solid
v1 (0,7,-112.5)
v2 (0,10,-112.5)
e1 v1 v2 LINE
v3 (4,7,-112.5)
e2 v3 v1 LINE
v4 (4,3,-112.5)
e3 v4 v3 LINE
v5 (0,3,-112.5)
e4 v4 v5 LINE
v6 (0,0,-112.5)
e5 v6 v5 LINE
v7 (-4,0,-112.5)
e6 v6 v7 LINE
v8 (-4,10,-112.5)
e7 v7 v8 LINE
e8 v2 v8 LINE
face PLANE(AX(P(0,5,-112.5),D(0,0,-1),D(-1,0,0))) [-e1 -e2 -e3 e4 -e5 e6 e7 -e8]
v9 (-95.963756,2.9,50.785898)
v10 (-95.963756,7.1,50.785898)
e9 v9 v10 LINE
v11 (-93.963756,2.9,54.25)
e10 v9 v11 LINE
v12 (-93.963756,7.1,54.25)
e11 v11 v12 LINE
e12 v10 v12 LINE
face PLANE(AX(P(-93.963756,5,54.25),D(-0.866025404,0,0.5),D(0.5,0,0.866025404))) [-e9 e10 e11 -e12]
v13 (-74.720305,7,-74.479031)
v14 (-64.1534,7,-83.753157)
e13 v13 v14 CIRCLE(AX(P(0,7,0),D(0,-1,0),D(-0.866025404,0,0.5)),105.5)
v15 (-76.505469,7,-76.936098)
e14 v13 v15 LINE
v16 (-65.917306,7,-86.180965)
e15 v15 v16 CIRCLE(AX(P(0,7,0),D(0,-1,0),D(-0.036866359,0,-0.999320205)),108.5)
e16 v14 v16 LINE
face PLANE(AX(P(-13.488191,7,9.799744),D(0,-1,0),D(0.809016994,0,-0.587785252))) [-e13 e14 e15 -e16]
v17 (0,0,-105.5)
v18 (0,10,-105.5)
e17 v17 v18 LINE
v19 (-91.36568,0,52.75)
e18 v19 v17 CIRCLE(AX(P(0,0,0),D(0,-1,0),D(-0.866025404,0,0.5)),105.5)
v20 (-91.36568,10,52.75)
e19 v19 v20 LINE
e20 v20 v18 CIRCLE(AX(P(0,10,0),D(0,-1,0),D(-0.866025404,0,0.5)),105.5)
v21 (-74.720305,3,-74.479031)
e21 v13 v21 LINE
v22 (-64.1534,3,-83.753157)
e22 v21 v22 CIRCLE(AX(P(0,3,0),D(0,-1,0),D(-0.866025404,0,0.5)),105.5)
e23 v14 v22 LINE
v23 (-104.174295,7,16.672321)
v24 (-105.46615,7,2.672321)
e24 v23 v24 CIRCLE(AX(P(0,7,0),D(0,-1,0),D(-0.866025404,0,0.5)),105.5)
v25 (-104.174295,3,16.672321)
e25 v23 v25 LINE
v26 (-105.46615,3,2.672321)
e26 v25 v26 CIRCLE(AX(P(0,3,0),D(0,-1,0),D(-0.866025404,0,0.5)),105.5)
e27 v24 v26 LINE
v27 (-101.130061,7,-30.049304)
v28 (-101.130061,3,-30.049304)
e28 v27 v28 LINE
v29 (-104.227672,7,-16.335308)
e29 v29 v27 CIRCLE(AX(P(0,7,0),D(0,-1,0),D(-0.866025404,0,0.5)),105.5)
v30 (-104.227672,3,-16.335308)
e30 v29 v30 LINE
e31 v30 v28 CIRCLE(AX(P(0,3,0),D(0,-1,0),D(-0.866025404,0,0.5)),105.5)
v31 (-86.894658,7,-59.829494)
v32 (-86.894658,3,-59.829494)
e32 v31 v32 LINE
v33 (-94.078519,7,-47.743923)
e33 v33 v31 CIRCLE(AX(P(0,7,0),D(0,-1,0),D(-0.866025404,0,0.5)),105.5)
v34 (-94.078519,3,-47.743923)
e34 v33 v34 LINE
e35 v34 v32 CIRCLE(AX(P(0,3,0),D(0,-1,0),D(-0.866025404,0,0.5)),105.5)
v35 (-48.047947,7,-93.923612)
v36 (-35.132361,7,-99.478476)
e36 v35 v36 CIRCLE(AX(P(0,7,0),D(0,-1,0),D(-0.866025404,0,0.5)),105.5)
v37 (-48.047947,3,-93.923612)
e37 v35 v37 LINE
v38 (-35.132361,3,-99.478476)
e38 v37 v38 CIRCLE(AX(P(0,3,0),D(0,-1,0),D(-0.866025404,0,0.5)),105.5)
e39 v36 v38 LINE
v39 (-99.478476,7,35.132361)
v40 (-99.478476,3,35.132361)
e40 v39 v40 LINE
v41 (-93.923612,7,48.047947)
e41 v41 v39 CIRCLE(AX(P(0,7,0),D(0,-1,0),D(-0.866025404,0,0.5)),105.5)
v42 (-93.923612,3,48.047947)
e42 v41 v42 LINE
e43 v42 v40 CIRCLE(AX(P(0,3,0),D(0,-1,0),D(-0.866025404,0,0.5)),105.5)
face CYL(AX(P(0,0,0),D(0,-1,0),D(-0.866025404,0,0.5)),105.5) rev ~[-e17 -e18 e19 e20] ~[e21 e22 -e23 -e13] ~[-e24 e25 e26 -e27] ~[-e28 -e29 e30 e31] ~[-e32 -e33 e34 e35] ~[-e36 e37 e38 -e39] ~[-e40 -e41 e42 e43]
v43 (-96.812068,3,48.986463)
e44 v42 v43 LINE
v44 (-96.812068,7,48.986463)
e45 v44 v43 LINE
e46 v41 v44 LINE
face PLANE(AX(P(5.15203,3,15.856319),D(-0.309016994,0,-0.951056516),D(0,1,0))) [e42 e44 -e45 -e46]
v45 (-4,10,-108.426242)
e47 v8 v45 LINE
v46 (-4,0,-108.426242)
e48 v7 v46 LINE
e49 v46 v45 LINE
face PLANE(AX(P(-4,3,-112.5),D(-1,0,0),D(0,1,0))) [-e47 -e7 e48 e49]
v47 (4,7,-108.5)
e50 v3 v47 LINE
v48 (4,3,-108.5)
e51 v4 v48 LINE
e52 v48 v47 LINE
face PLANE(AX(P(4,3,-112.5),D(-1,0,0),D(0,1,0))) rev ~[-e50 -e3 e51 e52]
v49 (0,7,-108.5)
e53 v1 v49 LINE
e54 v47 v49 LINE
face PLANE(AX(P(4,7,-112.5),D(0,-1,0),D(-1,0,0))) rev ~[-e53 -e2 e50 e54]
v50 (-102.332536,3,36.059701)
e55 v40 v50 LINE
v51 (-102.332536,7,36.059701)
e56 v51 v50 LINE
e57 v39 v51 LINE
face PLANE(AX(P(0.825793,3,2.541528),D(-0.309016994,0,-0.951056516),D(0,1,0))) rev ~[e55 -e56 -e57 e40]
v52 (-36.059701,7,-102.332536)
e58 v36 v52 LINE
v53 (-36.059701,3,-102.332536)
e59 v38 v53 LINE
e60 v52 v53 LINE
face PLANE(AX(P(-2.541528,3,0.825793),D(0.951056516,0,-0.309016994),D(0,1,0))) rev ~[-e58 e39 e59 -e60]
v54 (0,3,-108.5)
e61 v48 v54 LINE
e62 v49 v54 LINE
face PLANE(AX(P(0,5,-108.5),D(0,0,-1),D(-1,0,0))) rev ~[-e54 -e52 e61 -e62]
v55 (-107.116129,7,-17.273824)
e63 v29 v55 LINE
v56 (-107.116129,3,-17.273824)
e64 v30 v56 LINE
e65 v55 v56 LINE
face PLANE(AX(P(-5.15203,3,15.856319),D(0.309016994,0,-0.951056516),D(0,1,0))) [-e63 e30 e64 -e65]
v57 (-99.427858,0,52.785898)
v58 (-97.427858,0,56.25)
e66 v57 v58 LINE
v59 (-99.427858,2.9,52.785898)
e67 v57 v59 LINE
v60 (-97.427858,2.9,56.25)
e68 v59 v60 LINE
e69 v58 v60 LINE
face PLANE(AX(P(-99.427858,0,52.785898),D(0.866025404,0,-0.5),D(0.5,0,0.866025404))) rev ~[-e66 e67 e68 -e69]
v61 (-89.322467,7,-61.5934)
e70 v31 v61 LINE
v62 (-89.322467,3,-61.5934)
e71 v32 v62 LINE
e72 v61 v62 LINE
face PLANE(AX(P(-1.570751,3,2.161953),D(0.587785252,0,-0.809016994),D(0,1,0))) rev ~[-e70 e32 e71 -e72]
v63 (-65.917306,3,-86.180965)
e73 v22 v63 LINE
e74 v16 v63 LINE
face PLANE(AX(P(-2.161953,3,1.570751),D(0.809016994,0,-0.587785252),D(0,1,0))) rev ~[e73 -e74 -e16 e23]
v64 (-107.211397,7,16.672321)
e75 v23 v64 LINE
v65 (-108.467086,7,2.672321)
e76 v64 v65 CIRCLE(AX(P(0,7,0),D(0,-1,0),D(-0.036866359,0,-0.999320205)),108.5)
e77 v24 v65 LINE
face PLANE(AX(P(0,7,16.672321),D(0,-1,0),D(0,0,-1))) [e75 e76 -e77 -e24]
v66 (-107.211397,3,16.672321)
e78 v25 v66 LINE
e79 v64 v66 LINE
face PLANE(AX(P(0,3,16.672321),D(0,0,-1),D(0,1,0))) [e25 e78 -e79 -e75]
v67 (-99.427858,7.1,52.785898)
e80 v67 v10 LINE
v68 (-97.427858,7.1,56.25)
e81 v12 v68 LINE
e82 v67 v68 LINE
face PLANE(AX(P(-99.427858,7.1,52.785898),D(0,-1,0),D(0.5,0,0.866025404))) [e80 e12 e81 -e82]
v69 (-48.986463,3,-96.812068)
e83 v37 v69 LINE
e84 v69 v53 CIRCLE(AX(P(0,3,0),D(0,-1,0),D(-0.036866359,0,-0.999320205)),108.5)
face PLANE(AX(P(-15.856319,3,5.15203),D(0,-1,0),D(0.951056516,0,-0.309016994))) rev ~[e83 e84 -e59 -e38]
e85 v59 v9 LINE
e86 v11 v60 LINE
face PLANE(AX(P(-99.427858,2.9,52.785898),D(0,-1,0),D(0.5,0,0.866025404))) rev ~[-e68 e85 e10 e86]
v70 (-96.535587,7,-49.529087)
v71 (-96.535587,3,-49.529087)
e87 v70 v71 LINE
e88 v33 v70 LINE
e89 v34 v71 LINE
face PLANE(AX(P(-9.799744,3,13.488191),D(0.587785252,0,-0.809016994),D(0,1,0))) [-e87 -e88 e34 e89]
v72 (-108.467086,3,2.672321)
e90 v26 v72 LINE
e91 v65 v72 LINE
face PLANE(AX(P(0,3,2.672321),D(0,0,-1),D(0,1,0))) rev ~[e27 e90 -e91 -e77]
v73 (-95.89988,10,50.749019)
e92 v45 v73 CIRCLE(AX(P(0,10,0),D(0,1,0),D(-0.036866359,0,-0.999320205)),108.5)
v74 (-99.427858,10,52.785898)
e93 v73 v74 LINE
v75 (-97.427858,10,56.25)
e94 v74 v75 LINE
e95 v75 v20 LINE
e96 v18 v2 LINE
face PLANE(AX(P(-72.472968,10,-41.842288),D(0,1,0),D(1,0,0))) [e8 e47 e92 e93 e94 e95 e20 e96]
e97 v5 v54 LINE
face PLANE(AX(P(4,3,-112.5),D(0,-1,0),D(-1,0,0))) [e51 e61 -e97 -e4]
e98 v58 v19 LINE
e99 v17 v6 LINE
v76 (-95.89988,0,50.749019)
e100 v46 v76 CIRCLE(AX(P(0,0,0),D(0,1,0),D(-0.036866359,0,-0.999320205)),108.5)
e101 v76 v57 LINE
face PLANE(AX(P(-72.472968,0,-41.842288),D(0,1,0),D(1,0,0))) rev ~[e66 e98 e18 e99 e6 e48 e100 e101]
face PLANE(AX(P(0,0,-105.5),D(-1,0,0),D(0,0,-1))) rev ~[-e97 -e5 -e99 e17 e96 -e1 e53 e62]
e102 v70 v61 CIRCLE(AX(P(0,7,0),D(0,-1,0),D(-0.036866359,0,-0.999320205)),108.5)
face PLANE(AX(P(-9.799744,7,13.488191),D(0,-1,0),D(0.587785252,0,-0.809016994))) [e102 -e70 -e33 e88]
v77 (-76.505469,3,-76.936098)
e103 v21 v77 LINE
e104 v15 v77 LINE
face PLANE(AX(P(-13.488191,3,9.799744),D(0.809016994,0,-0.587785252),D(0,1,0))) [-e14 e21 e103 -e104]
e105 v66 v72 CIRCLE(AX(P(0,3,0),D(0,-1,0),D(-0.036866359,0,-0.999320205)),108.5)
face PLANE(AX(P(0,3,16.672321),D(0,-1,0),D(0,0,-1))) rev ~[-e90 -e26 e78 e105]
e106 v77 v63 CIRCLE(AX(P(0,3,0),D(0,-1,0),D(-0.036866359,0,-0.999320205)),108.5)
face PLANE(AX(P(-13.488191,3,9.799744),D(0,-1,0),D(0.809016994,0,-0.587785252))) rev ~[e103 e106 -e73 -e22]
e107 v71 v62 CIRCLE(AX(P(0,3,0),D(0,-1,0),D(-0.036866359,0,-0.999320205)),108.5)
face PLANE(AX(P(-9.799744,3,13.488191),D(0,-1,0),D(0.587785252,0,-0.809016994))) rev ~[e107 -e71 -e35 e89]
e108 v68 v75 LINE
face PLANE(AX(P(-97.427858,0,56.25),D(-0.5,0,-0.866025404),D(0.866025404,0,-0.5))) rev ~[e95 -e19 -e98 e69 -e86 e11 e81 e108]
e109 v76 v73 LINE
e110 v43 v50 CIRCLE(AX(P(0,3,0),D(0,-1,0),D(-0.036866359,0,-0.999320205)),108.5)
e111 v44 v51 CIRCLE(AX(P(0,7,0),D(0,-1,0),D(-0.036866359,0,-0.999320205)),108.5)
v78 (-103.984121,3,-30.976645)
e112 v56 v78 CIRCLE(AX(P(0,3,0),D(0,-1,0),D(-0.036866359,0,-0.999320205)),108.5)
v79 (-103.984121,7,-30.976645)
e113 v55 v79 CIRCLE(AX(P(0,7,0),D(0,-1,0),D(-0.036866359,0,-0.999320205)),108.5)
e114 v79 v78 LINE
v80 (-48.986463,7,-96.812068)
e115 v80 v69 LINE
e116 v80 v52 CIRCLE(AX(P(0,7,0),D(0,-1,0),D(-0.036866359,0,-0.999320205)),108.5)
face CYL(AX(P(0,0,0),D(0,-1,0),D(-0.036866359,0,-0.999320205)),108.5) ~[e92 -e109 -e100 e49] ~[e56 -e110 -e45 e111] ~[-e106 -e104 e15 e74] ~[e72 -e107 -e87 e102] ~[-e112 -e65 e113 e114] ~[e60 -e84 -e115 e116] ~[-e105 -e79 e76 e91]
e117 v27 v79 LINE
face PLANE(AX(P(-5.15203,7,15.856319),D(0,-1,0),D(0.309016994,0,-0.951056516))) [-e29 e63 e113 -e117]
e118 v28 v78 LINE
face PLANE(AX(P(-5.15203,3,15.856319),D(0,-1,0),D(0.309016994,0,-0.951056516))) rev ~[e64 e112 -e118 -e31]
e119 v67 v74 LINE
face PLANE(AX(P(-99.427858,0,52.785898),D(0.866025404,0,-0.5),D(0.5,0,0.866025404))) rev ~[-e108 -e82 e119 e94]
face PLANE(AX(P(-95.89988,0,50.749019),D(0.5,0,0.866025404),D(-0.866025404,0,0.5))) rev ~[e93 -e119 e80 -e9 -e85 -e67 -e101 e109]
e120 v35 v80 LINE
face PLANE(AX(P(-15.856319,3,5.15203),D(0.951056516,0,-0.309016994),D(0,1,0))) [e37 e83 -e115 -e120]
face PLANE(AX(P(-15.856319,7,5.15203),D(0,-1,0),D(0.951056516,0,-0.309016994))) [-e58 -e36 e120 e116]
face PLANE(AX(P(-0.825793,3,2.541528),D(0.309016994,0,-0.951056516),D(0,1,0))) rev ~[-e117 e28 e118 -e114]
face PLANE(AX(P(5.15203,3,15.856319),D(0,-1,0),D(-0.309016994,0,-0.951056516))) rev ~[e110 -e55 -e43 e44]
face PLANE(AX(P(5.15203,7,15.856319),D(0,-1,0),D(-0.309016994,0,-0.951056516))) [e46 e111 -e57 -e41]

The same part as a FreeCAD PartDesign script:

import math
import FreeCAD as App
import Part
import Sketcher
Q = App.Units.Quantity

doc = App.newDocument("Part")
body = doc.addObject("PartDesign::Body", "Body")

sketch1 = body.newObject("Sketcher::SketchObject", "Sketch")
sketch1.AttachmentSupport = (doc.getObject("XZ_Plane"), [""])
sketch1.MapMode = "FlatFace"
sketch1.addGeometry(Part.LineSegment(App.Vector(-4, -112.5, 0), App.Vector(-4, -108.4, 0)), False)
sketch1.addGeometry(Part.ArcOfCircle(Part.Circle(App.Vector(0, 0, 0), App.Vector(0, 0, 1), 108.5), math.radians(152), math.radians(268)), False)
sketch1.addGeometry(Part.LineSegment(App.Vector(-95.9, 50.7, 0), App.Vector(-99.4, 52.8, 0)), False)
sketch1.addGeometry(Part.LineSegment(App.Vector(-99.4, 52.8, 0), App.Vector(-97.4, 56.2, 0)), False)
sketch1.addGeometry(Part.LineSegment(App.Vector(-97.4, 56.2, 0), App.Vector(-91.4, 52.8, 0)), False)
sketch1.addGeometry(Part.ArcOfCircle(Part.Circle(App.Vector(0, 0, 0), App.Vector(0, 0, 1), 105.5), math.radians(150), math.radians(270)), False)
sketch1.addGeometry(Part.LineSegment(App.Vector(0, -105.5, 0), App.Vector(0, -112.5, 0)), False)
sketch1.addGeometry(Part.LineSegment(App.Vector(0, -112.5, 0), App.Vector(-4, -112.5, 0)), False)
sketch1.addConstraint(Sketcher.Constraint("Coincident", 0, 2, 1, 2))
sketch1.addConstraint(Sketcher.Constraint("Coincident", 1, 1, 2, 1))
sketch1.addConstraint(Sketcher.Constraint("Coincident", 2, 2, 3, 1))
sketch1.addConstraint(Sketcher.Constraint("Coincident", 3, 2, 4, 1))
sketch1.addConstraint(Sketcher.Constraint("Coincident", 4, 2, 5, 1))
sketch1.addConstraint(Sketcher.Constraint("Coincident", 5, 2, 6, 1))
sketch1.addConstraint(Sketcher.Constraint("Coincident", 6, 2, 7, 1))
sketch1.addConstraint(Sketcher.Constraint("Coincident", 7, 2, 0, 1))
sketch1.addConstraint(Sketcher.Constraint("Vertical", 0))
sketch1.addConstraint(Sketcher.Constraint("Vertical", 6))
sketch1.addConstraint(Sketcher.Constraint("Horizontal", 7))
sketch1.addConstraint(Sketcher.Constraint("Coincident", 1, 3, -1, 1))
sketch1.addConstraint(Sketcher.Constraint("Coincident", 5, 3, -1, 1))
sketch1.addConstraint(Sketcher.Constraint("PointOnObject", 5, 2, -2))
sketch1.addConstraint(Sketcher.Constraint("Perpendicular", 2, 3))
sketch1.addConstraint(Sketcher.Constraint("Perpendicular", 3, 4))
sketch1.addConstraint(Sketcher.Constraint("Radius", 1, 108.5))
sketch1.addConstraint(Sketcher.Constraint("Radius", 5, 105.5))
sketch1.addConstraint(Sketcher.Constraint("DistanceX", 7, 2, 7, 1, 4.0))
sketch1.addConstraint(Sketcher.Constraint("DistanceY", 6, 2, 6, 1, 7.0))
sketch1.addConstraint(Sketcher.Constraint("Angle", 2, Q("150 deg")))
sketch1.addConstraint(Sketcher.Constraint("Distance", 3, 4.0))
sketch1.addConstraint(Sketcher.Constraint("Distance", 4, 7.0))
sketch1.addConstraint(Sketcher.Constraint("DistanceY", -1, 1, 3, 2, 56.25))
pad1 = body.newObject("PartDesign::Pad", "Pad")
pad1.Profile = sketch1
pad1.Length = 10
pad1.Reversed = True

sketch2 = body.newObject("Sketcher::SketchObject", "Sketch001")
sketch2.Placement = App.Placement(App.Vector(-97.427858, 0, 56.25), App.Rotation(App.Vector(0.5, 0, 0.866025404), App.Vector(0, 1, 0), App.Vector(-0.866025404, 0, 0.5), "ZXY"))
sketch2.addGeometry(Part.LineSegment(App.Vector(-4, 7.1, 0), App.Vector(-4, 2.9, 0)), False)
sketch2.addGeometry(Part.LineSegment(App.Vector(-4, 2.9, 0), App.Vector(4, 2.9, 0)), False)
sketch2.addGeometry(Part.LineSegment(App.Vector(4, 2.9, 0), App.Vector(4, 7.1, 0)), False)
sketch2.addGeometry(Part.LineSegment(App.Vector(4, 7.1, 0), App.Vector(-4, 7.1, 0)), False)
sketch2.addConstraint(Sketcher.Constraint("Coincident", 0, 2, 1, 1))
sketch2.addConstraint(Sketcher.Constraint("Coincident", 1, 2, 2, 1))
sketch2.addConstraint(Sketcher.Constraint("Coincident", 2, 2, 3, 1))
sketch2.addConstraint(Sketcher.Constraint("Coincident", 3, 2, 0, 1))
sketch2.addConstraint(Sketcher.Constraint("Vertical", 0))
sketch2.addConstraint(Sketcher.Constraint("Horizontal", 1))
sketch2.addConstraint(Sketcher.Constraint("Vertical", 2))
sketch2.addConstraint(Sketcher.Constraint("Horizontal", 3))
sketch2.addConstraint(Sketcher.Constraint("DistanceX", 1, 1, 1, 2, 8.0))
sketch2.addConstraint(Sketcher.Constraint("DistanceY", 0, 2, 0, 1, 4.2))
sketch2.addConstraint(Sketcher.Constraint("DistanceX", 0, 2, -1, 1, 4.0))
sketch2.addConstraint(Sketcher.Constraint("DistanceY", -1, 1, 0, 2, 2.9))
pocket1 = body.newObject("PartDesign::Pocket", "Pocket")
pocket1.Profile = sketch2
pocket1.Length = 4

sketch3 = body.newObject("Sketcher::SketchObject", "Sketch002")
sketch3.AttachmentSupport = (doc.getObject("XY_Plane"), [""])
sketch3.MapMode = "FlatFace"
sketch3.AttachmentOffset = App.Placement(App.Vector(0, 0, -112.5), App.Rotation())
sketch3.addGeometry(Part.LineSegment(App.Vector(4, 7, 0), App.Vector(4, 3, 0)), False)
sketch3.addGeometry(Part.LineSegment(App.Vector(4, 3, 0), App.Vector(-4, 3, 0)), False)
sketch3.addGeometry(Part.LineSegment(App.Vector(-4, 3, 0), App.Vector(-4, 7, 0)), False)
sketch3.addGeometry(Part.LineSegment(App.Vector(-4, 7, 0), App.Vector(4, 7, 0)), False)
sketch3.addConstraint(Sketcher.Constraint("Coincident", 0, 2, 1, 1))
sketch3.addConstraint(Sketcher.Constraint("Coincident", 1, 2, 2, 1))
sketch3.addConstraint(Sketcher.Constraint("Coincident", 2, 2, 3, 1))
sketch3.addConstraint(Sketcher.Constraint("Coincident", 3, 2, 0, 1))
sketch3.addConstraint(Sketcher.Constraint("Vertical", 0))
sketch3.addConstraint(Sketcher.Constraint("Horizontal", 1))
sketch3.addConstraint(Sketcher.Constraint("Vertical", 2))
sketch3.addConstraint(Sketcher.Constraint("Horizontal", 3))
sketch3.addConstraint(Sketcher.Constraint("DistanceX", 1, 2, 1, 1, 8.0))
sketch3.addConstraint(Sketcher.Constraint("DistanceY", 0, 2, 0, 1, 4.0))
sketch3.addConstraint(Sketcher.Constraint("DistanceX", -1, 1, 0, 2, 4.0))
sketch3.addConstraint(Sketcher.Constraint("DistanceY", -1, 1, 0, 2, 3.0))
pad2 = body.newObject("PartDesign::Pad", "Pad001")
pad2.Profile = sketch3
pad2.Length = 4

sketch4 = body.newObject("Sketcher::SketchObject", "Sketch003")
sketch4.AttachmentSupport = (doc.getObject("YZ_Plane"), [""])
sketch4.MapMode = "FlatFace"
sketch4.addGeometry(Part.LineSegment(App.Vector(7, 16.7, 0), App.Vector(3, 16.7, 0)), False)
sketch4.addGeometry(Part.LineSegment(App.Vector(3, 16.7, 0), App.Vector(3, 2.7, 0)), False)
sketch4.addGeometry(Part.LineSegment(App.Vector(3, 2.7, 0), App.Vector(7, 2.7, 0)), False)
sketch4.addGeometry(Part.LineSegment(App.Vector(7, 2.7, 0), App.Vector(7, 16.7, 0)), False)
sketch4.addConstraint(Sketcher.Constraint("Coincident", 0, 2, 1, 1))
sketch4.addConstraint(Sketcher.Constraint("Coincident", 1, 2, 2, 1))
sketch4.addConstraint(Sketcher.Constraint("Coincident", 2, 2, 3, 1))
sketch4.addConstraint(Sketcher.Constraint("Coincident", 3, 2, 0, 1))
sketch4.addConstraint(Sketcher.Constraint("Horizontal", 0))
sketch4.addConstraint(Sketcher.Constraint("Vertical", 1))
sketch4.addConstraint(Sketcher.Constraint("Horizontal", 2))
sketch4.addConstraint(Sketcher.Constraint("Vertical", 3))
sketch4.addConstraint(Sketcher.Constraint("DistanceX", 0, 2, 0, 1, 4.0))
sketch4.addConstraint(Sketcher.Constraint("DistanceY", 1, 2, 1, 1, 14.0))
sketch4.addConstraint(Sketcher.Constraint("DistanceX", -1, 1, 0, 2, 3.0))
sketch4.addConstraint(Sketcher.Constraint("DistanceY", -1, 1, 0, 2, 16.672321))
pocket2 = body.newObject("PartDesign::Pocket", "Pocket001")
pocket2.Profile = sketch4
pocket2.Type = "ThroughAll"
doc.recompute()

polarpattern = body.newObject("PartDesign::PolarPattern", "PolarPattern")
polarpattern.Originals = [pocket2]
polarpattern.Axis = (doc.getObject("Y_Axis"), [""])
polarpattern.Angle = 72
polarpattern.Occurrences = 5
polarpattern.Reversed = True
body.Tip = polarpattern
doc.recompute()

polarpattern2 = body.newObject("PartDesign::PolarPattern", "PolarPattern001")
polarpattern2.Originals = [pocket2]
polarpattern2.Axis = (doc.getObject("Y_Axis"), [""])
polarpattern2.Angle = 72
polarpattern2.Occurrences = 5
body.Tip = polarpattern2

doc.recompute()
